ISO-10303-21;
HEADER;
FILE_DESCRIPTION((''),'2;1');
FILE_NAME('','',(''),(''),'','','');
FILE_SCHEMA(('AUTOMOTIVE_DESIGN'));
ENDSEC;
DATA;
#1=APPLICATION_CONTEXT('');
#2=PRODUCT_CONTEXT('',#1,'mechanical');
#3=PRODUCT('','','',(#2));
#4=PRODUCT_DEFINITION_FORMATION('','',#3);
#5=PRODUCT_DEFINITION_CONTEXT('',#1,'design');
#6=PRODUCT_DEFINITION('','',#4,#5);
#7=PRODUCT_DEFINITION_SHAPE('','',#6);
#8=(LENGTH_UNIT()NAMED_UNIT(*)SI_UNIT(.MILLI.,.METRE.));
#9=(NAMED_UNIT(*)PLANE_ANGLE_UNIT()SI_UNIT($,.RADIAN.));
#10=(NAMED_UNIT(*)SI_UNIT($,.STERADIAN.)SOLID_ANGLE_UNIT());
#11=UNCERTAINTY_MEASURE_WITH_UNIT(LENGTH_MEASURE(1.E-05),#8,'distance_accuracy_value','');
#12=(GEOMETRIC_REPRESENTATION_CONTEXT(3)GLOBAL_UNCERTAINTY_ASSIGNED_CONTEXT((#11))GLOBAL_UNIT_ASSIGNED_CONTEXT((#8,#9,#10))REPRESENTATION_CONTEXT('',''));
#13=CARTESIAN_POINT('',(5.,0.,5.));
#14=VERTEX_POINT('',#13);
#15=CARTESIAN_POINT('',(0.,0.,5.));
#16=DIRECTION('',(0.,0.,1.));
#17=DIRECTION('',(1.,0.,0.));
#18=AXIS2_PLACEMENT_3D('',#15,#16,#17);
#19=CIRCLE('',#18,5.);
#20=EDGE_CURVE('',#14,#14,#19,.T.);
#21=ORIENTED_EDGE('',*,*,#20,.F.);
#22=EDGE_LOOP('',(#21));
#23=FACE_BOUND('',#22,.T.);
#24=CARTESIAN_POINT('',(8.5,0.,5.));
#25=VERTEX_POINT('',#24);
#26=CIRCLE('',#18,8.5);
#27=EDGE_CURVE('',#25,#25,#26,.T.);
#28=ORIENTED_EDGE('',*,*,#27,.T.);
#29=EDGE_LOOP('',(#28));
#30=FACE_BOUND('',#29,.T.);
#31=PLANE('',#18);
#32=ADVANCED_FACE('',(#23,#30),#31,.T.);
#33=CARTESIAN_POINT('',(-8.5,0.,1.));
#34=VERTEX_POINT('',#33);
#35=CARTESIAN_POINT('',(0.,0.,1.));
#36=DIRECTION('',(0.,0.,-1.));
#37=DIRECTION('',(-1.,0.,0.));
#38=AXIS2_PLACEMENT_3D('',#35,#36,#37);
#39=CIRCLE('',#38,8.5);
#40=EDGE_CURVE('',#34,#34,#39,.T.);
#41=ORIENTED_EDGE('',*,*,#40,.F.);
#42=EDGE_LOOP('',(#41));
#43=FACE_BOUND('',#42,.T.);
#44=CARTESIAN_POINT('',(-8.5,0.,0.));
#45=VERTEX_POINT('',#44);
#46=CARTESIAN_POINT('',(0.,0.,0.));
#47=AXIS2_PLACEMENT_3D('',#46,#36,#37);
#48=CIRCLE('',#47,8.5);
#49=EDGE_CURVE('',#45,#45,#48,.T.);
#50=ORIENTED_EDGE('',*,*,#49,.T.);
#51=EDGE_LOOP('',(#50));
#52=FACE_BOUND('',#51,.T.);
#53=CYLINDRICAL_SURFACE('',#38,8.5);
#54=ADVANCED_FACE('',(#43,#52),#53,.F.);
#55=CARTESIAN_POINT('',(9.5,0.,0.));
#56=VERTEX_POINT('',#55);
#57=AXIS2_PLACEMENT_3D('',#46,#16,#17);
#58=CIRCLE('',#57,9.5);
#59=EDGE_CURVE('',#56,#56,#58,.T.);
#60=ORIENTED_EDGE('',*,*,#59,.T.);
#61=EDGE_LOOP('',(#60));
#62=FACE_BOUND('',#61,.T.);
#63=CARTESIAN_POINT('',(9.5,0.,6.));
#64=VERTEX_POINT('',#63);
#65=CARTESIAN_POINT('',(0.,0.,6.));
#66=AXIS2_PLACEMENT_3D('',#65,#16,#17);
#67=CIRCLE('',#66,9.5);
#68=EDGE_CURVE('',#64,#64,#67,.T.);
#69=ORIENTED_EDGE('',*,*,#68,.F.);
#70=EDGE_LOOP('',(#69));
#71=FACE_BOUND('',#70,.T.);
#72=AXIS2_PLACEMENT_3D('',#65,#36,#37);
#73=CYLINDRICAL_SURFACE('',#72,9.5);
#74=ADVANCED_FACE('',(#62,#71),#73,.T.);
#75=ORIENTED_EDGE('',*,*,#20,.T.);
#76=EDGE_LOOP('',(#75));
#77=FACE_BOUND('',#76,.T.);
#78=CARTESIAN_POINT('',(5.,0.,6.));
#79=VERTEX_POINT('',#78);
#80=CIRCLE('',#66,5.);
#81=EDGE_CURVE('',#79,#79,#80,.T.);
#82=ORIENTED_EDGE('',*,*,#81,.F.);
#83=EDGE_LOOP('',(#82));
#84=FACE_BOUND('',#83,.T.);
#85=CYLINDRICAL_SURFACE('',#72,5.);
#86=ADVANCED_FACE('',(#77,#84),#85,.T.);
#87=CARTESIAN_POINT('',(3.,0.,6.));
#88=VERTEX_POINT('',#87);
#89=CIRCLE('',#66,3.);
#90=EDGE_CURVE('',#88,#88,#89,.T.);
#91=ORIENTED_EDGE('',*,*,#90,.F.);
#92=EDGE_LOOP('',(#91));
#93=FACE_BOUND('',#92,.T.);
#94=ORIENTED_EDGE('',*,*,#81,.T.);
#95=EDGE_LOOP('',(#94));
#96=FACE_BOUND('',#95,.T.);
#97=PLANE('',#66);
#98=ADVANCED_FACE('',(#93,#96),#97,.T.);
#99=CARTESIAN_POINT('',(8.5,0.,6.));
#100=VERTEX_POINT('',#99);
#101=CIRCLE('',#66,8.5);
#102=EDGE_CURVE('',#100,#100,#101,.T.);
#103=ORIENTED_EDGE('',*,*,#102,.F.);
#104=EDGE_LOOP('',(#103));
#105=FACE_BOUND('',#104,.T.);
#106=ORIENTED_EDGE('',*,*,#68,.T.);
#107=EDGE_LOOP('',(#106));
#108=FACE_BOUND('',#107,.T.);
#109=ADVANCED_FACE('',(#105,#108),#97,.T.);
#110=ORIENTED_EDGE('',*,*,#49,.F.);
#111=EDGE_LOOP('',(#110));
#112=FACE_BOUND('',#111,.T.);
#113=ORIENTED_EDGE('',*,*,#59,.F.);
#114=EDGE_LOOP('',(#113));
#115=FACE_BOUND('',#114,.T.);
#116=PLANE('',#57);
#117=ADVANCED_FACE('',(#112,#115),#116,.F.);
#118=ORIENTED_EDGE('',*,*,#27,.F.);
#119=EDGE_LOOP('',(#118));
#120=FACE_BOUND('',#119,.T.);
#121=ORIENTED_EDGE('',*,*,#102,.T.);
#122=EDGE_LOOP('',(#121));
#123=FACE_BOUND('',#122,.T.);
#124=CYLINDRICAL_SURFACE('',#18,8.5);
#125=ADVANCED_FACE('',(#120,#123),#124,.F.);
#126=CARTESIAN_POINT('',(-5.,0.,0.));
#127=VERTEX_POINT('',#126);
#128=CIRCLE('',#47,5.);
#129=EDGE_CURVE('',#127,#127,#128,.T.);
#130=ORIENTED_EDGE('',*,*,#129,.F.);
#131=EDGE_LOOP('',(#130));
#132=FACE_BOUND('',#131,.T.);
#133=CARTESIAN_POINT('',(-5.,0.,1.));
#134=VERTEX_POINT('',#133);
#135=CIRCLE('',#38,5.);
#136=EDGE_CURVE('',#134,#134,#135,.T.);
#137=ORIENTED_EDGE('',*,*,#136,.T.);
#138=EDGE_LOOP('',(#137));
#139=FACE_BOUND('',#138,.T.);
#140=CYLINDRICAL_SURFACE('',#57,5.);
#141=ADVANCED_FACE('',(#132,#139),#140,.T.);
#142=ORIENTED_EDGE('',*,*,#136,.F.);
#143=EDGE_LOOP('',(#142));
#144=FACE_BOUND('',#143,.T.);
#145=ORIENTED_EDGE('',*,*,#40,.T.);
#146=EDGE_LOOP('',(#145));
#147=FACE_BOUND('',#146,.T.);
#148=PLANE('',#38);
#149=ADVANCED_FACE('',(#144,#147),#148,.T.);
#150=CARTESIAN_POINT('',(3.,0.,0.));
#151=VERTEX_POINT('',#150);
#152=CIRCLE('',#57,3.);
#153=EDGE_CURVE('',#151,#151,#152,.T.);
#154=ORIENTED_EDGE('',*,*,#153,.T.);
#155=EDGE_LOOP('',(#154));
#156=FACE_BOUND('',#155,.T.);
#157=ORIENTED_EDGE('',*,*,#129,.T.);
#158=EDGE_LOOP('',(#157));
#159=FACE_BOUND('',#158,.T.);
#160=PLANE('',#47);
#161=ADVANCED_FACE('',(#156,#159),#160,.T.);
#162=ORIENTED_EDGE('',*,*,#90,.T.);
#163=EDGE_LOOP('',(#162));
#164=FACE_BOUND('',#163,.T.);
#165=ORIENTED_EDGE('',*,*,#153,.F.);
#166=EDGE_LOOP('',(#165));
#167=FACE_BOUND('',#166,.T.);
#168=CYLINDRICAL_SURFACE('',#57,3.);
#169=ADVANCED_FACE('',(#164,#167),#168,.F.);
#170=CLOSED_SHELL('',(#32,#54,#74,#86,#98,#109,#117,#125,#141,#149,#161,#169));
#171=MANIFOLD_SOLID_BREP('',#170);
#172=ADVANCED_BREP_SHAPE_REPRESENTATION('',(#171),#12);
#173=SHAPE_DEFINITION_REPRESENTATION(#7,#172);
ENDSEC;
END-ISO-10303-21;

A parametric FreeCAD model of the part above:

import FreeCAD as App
import Part
import Sketcher
Q = App.Units.Quantity

doc = App.newDocument("Part")
body = doc.addObject("PartDesign::Body", "Body")

sketch1 = body.newObject("Sketcher::SketchObject", "Sketch")
sketch1.AttachmentSupport = (doc.getObject("XY_Plane"), [""])
sketch1.MapMode = "FlatFace"
sketch1.addGeometry(Part.Circle(App.Vector(0, 0, 0), App.Vector(0, 0, 1), 9.5), False)
sketch1.addConstraint(Sketcher.Constraint("Coincident", 0, 3, -1, 1))
sketch1.addConstraint(Sketcher.Constraint("Diameter", 0, Q("19 mm")))
pad1 = body.newObject("PartDesign::Pad", "Pad")
pad1.Profile = sketch1
pad1.Length = 6

sketch2 = body.newObject("Sketcher::SketchObject", "Sketch001")
sketch2.AttachmentSupport = (doc.getObject("XY_Plane"), [""])
sketch2.MapMode = "FlatFace"
sketch2.AttachmentOffset = App.Placement(App.Vector(0, 0, 6), App.Rotation())
sketch2.addGeometry(Part.Circle(App.Vector(0, 0, 0), App.Vector(0, 0, 1), 8.5), False)
sketch2.addConstraint(Sketcher.Constraint("Coincident", 0, 3, -1, 1))
sketch2.addConstraint(Sketcher.Constraint("Diameter", 0, Q("17 mm")))
pocket1 = body.newObject("PartDesign::Pocket", "Pocket")
pocket1.Profile = sketch2
pocket1.Length = 1

sketch3 = body.newObject("Sketcher::SketchObject", "Sketch002")
sketch3.AttachmentSupport = (doc.getObject("XY_Plane"), [""])
sketch3.MapMode = "FlatFace"
sketch3.AttachmentOffset = App.Placement(App.Vector(0, 0, 1), App.Rotation())
sketch3.addGeometry(Part.Circle(App.Vector(0, 0, 0), App.Vector(0, 0, 1), 8.5), False)
sketch3.addConstraint(Sketcher.Constraint("Coincident", 0, 3, -1, 1))
sketch3.addConstraint(Sketcher.Constraint("Diameter", 0, Q("17 mm")))
pocket2 = body.newObject("PartDesign::Pocket", "Pocket001")
pocket2.Profile = sketch3
pocket2.Length = 1

sketch4 = body.newObject("Sketcher::SketchObject", "Sketch003")
sketch4.AttachmentSupport = (doc.getObject("XY_Plane"), [""])
sketch4.MapMode = "FlatFace"
sketch4.AttachmentOffset = App.Placement(App.Vector(0, 0, 5), App.Rotation())
sketch4.addGeometry(Part.Circle(App.Vector(0, 0, 0), App.Vector(0, 0, 1), 5), False)
sketch4.addConstraint(Sketcher.Constraint("Coincident", 0, 3, -1, 1))
sketch4.addConstraint(Sketcher.Constraint("Diameter", 0, Q("10 mm")))
pad2 = body.newObject("PartDesign::Pad", "Pad001")
pad2.Profile = sketch4
pad2.Length = 1

sketch5 = body.newObject("Sketcher::SketchObject", "Sketch004")
sketch5.AttachmentSupport = (doc.getObject("XY_Plane"), [""])
sketch5.MapMode = "FlatFace"
sketch5.addGeometry(Part.Circle(App.Vector(0, 0, 0), App.Vector(0, 0, 1), 5), False)
sketch5.addConstraint(Sketcher.Constraint("Coincident", 0, 3, -1, 1))
sketch5.addConstraint(Sketcher.Constraint("Diameter", 0, Q("10 mm")))
pad3 = body.newObject("PartDesign::Pad", "Pad002")
pad3.Profile = sketch5
pad3.Length = 1

sketch6 = body.newObject("Sketcher::SketchObject", "Sketch005")
sketch6.AttachmentSupport = (doc.getObject("XY_Plane"), [""])
sketch6.MapMode = "FlatFace"
sketch6.AttachmentOffset = App.Placement(App.Vector(0, 0, 6), App.Rotation())
sketch6.addGeometry(Part.Circle(App.Vector(0, 0, 0), App.Vector(0, 0, 1), 3), False)
sketch6.addConstraint(Sketcher.Constraint("Coincident", 0, 3, -1, 1))
sketch6.addConstraint(Sketcher.Constraint("Diameter", 0, Q("6 mm")))
pocket3 = body.newObject("PartDesign::Pocket", "Pocket002")
pocket3.Profile = sketch6
pocket3.Length = 6

doc.recompute()
